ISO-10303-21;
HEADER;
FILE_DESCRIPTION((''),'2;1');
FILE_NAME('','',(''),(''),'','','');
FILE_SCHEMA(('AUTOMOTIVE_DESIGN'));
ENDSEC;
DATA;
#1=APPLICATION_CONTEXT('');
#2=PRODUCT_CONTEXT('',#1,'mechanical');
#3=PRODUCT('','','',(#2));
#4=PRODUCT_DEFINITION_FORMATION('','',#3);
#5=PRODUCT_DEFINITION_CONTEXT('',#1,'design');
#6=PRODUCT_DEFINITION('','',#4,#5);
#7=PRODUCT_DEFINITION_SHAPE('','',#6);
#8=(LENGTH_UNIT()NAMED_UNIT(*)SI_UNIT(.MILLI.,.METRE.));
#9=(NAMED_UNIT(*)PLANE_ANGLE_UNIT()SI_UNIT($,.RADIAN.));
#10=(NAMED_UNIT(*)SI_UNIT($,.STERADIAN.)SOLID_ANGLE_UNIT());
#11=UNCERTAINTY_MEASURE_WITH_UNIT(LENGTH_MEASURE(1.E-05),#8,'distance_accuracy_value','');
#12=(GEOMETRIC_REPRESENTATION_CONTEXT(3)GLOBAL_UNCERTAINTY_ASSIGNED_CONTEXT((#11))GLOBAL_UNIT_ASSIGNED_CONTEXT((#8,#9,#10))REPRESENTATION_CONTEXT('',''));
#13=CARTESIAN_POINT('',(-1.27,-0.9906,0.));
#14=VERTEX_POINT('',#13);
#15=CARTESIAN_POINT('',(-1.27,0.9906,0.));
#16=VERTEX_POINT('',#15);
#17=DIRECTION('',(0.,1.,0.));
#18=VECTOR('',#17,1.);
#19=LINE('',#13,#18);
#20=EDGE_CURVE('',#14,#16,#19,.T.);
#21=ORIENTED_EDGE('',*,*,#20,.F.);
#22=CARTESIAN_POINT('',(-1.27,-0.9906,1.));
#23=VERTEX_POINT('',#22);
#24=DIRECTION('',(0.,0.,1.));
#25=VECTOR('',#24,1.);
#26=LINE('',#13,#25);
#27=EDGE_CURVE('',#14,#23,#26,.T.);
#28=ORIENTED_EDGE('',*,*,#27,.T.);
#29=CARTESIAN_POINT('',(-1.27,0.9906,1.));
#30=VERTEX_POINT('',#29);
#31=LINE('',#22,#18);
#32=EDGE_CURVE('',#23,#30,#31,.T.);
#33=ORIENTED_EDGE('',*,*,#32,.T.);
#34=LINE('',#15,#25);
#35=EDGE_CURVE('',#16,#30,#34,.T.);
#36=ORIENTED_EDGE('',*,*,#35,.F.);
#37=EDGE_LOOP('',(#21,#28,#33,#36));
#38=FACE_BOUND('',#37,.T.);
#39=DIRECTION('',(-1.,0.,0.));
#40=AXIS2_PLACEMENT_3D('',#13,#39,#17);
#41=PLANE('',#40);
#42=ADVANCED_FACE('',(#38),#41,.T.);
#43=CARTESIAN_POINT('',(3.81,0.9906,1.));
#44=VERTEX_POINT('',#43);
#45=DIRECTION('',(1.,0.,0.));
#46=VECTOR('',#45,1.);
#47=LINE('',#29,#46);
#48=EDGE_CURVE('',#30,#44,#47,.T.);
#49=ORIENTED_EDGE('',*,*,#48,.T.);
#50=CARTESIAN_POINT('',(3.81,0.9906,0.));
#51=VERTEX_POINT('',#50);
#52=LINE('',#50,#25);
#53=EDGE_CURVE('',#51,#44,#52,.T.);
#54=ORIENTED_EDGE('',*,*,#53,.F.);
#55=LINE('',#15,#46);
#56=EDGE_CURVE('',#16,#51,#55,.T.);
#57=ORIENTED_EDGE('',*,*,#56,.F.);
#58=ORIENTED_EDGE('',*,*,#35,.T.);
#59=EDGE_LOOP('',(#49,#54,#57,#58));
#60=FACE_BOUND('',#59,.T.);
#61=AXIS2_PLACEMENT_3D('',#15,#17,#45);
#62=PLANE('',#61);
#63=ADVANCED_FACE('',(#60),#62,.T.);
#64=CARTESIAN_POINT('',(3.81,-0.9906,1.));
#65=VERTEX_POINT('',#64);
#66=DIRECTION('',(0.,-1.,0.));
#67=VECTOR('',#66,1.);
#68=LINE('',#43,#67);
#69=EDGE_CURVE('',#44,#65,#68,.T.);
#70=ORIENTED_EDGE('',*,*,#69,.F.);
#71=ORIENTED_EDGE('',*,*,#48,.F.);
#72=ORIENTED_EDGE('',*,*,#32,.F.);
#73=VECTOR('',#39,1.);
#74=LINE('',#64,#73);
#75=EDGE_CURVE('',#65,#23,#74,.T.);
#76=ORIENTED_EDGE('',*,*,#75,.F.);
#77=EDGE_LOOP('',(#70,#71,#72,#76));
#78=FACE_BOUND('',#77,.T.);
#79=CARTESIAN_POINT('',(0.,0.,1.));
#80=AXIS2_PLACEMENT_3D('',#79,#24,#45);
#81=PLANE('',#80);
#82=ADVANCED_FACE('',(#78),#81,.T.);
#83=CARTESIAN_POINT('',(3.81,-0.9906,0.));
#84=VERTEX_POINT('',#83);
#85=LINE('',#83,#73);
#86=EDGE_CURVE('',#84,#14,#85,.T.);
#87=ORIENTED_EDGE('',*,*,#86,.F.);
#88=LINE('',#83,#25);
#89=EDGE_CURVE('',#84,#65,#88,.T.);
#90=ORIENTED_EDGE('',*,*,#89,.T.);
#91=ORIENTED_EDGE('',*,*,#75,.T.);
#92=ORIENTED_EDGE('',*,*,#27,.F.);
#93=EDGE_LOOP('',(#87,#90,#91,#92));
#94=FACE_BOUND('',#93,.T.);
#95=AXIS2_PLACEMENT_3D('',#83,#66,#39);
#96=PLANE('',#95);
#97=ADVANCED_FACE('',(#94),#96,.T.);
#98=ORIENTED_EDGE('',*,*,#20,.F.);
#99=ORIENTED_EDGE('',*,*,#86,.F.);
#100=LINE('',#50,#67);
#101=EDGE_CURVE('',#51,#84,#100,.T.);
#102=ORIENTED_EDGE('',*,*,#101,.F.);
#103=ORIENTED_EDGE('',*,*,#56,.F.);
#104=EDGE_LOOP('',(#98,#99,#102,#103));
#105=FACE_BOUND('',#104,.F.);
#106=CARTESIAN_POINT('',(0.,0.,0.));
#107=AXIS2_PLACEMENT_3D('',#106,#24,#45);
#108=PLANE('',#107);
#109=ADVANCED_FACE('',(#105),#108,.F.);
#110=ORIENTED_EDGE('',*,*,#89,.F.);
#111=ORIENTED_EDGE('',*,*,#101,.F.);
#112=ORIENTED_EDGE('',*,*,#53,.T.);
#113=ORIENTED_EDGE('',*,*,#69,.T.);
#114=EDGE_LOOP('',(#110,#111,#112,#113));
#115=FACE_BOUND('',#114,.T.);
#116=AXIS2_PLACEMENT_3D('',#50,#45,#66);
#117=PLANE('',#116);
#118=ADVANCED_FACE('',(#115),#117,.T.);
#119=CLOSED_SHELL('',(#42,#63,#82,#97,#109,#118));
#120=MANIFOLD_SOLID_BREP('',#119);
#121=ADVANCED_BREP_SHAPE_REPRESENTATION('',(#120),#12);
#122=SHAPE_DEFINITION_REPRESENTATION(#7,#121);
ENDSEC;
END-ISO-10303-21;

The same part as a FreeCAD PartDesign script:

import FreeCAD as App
import Part
import Sketcher
Q = App.Units.Quantity

doc = App.newDocument("Part")
body = doc.addObject("PartDesign::Body", "Body")

# Sketch on XY plane
sketch1 = body.newObject("Sketcher::SketchObject", "Sketch")
sketch1.AttachmentSupport = (doc.getObject("XY_Plane"), [""])
sketch1.MapMode = "FlatFace"
sketch1.addGeometry(Part.LineSegment(App.Vector(3.8, 1, 0), App.Vector(-1.3, 1, 0)), False)
sketch1.addGeometry(Part.LineSegment(App.Vector(-1.3, 1, 0), App.Vector(-1.3, -1, 0)), False)
sketch1.addGeometry(Part.LineSegment(App.Vector(-1.3, -1, 0), App.Vector(3.8, -1, 0)), False)
sketch1.addGeometry(Part.LineSegment(App.Vector(3.8, -1, 0), App.Vector(3.8, 1, 0)), False)
sketch1.addConstraint(Sketcher.Constraint("Coincident", 0, 2, 1, 1))
sketch1.addConstraint(Sketcher.Constraint("Coincident", 1, 2, 2, 1))
sketch1.addConstraint(Sketcher.Constraint("Coincident", 2, 2, 3, 1))
sketch1.addConstraint(Sketcher.Constraint("Coincident", 3, 2, 0, 1))
sketch1.addConstraint(Sketcher.Constraint("Horizontal", 0))
sketch1.addConstraint(Sketcher.Constraint("Vertical", 1))
sketch1.addConstraint(Sketcher.Constraint("Horizontal", 2))
sketch1.addConstraint(Sketcher.Constraint("Vertical", 3))
sketch1.addConstraint(Sketcher.Constraint("DistanceX", 0, 2, 0, 1, Q("0.2 in")))
sketch1.addConstraint(Sketcher.Constraint("DistanceY", 1, 2, 1, 1, Q("0.078 in")))
sketch1.addConstraint(Sketcher.Constraint("DistanceX", 0, 2, -1, 1, Q("0.05 in")))
sketch1.addConstraint(Sketcher.Constraint("DistanceY", -1, 1, 0, 2, Q("0.039 in")))
pad1 = body.newObject("PartDesign::Pad", "Pad")
pad1.Profile = sketch1
pad1.Length = 1

doc.recompute()
